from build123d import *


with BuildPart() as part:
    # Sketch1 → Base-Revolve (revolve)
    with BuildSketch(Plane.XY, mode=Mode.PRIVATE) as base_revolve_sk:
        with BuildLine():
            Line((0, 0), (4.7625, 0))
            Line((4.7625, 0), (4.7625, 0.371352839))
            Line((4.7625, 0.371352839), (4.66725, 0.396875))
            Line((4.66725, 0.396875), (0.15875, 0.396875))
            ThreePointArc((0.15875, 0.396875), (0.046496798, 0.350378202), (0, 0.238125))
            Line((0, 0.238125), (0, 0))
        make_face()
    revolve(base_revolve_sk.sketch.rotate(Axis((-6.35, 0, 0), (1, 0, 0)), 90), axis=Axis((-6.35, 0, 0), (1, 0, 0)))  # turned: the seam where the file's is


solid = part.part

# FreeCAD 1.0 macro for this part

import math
import FreeCAD as App
import Part
import Sketcher
Q = App.Units.Quantity

doc = App.newDocument("Part")
body = doc.addObject("PartDesign::Body", "Body")

# Sketch on XY plane
sketch1 = doc.addObject("Sketcher::SketchObject", "Sketch")
body.addObject(sketch1)
sketch1.AttachmentSupport = (doc.XY_Plane, [""])
sketch1.MapMode = "FlatFace"
sketch1.addGeometry([
    Part.LineSegment(App.Vector(0, 0, 0), App.Vector(4.76, 0, 0)),  # 0
    Part.LineSegment(App.Vector(4.76, 0, 0), App.Vector(4.76, 0.37, 0)),  # 1
    Part.LineSegment(App.Vector(4.76, 0.37, 0), App.Vector(4.67, 0.4, 0)),  # 2
    Part.LineSegment(App.Vector(4.67, 0.4, 0), App.Vector(0.16, 0.4, 0)),  # 3
    Part.ArcOfCircle(Part.Circle(App.Vector(0.16, 0.24, 0), App.Vector(0, 0, 1), 0.16), math.radians(90), math.radians(180)),  # 4
    Part.LineSegment(App.Vector(0, 0.24, 0), App.Vector(0, 0, 0)),  # 5
], False)
sketch1.addConstraint([
    Sketcher.Constraint("Coincident", 0, 2, 1, 1),
    Sketcher.Constraint("Coincident", 1, 2, 2, 1),
    Sketcher.Constraint("Coincident", 2, 2, 3, 1),
    Sketcher.Constraint("Tangent", 3, 2, 4, 1),
    Sketcher.Constraint("Tangent", 4, 2, 5, 1),
    Sketcher.Constraint("Coincident", 5, 2, 0, 1),
    Sketcher.Constraint("Horizontal", 0),
    Sketcher.Constraint("Vertical", 1),
    Sketcher.Constraint("Horizontal", 3),
    Sketcher.Constraint("Vertical", 5),
    Sketcher.Constraint("Coincident", 5, 2, -1, 1),
    Sketcher.Constraint("Angle", 2, Q("165 deg")),
    Sketcher.Constraint("DistanceX", 0, 1, 0, 2, Q("0.1875 in")),
    Sketcher.Constraint("DistanceX", 3, 2, 3, 1, Q("0.1775 in")),
    Sketcher.Constraint("DistanceY", -1, 1, 2, 2, Q("0.015625 in")),
    Sketcher.Constraint("Radius", 4, Q("0.15875 mm")),
])
revolution = doc.addObject("PartDesign::Revolution", "Revolution")
body.addObject(revolution)
revolution.Profile = sketch1
revolution.ReferenceAxis = (sketch1, ["H_Axis"])
revolution.Angle = 360

doc.recompute()
